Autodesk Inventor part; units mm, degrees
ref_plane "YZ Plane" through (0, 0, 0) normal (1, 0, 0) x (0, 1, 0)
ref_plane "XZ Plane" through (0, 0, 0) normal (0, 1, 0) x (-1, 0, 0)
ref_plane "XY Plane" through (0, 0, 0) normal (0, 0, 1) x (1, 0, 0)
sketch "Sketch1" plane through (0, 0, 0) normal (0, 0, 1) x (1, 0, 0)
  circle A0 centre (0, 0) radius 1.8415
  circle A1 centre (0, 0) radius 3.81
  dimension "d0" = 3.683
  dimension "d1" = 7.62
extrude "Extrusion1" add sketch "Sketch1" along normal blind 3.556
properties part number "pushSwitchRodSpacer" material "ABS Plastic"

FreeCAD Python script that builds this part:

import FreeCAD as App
import Part
import Sketcher
Q = App.Units.Quantity

doc = App.newDocument("Part")
body = doc.addObject("PartDesign::Body", "Body")

# Sketch on XY plane
sketch1 = body.newObject("Sketcher::SketchObject", "Sketch")
sketch1.AttachmentSupport = (doc.getObject("XY_Plane"), [""])
sketch1.MapMode = "FlatFace"
sketch1.addGeometry(Part.Circle(App.Vector(0, 0, 0), App.Vector(0, 0, 1), 3.8), False)
sketch1.addGeometry(Part.Circle(App.Vector(0, 0, 0), App.Vector(0, 0, 1), 1.8), False)
sketch1.addConstraint(Sketcher.Constraint("Coincident", 0, 3, -1, 1))
sketch1.addConstraint(Sketcher.Constraint("Coincident", 1, 3, -1, 1))
sketch1.addConstraint(Sketcher.Constraint("Diameter", 0, Q("0.3 in")))
sketch1.addConstraint(Sketcher.Constraint("Diameter", 1, Q("0.145 in")))
pad1 = body.newObject("PartDesign::Pad", "Pad")
pad1.Profile = sketch1
pad1.Length = Q("0.14 in")

doc.recompute()
